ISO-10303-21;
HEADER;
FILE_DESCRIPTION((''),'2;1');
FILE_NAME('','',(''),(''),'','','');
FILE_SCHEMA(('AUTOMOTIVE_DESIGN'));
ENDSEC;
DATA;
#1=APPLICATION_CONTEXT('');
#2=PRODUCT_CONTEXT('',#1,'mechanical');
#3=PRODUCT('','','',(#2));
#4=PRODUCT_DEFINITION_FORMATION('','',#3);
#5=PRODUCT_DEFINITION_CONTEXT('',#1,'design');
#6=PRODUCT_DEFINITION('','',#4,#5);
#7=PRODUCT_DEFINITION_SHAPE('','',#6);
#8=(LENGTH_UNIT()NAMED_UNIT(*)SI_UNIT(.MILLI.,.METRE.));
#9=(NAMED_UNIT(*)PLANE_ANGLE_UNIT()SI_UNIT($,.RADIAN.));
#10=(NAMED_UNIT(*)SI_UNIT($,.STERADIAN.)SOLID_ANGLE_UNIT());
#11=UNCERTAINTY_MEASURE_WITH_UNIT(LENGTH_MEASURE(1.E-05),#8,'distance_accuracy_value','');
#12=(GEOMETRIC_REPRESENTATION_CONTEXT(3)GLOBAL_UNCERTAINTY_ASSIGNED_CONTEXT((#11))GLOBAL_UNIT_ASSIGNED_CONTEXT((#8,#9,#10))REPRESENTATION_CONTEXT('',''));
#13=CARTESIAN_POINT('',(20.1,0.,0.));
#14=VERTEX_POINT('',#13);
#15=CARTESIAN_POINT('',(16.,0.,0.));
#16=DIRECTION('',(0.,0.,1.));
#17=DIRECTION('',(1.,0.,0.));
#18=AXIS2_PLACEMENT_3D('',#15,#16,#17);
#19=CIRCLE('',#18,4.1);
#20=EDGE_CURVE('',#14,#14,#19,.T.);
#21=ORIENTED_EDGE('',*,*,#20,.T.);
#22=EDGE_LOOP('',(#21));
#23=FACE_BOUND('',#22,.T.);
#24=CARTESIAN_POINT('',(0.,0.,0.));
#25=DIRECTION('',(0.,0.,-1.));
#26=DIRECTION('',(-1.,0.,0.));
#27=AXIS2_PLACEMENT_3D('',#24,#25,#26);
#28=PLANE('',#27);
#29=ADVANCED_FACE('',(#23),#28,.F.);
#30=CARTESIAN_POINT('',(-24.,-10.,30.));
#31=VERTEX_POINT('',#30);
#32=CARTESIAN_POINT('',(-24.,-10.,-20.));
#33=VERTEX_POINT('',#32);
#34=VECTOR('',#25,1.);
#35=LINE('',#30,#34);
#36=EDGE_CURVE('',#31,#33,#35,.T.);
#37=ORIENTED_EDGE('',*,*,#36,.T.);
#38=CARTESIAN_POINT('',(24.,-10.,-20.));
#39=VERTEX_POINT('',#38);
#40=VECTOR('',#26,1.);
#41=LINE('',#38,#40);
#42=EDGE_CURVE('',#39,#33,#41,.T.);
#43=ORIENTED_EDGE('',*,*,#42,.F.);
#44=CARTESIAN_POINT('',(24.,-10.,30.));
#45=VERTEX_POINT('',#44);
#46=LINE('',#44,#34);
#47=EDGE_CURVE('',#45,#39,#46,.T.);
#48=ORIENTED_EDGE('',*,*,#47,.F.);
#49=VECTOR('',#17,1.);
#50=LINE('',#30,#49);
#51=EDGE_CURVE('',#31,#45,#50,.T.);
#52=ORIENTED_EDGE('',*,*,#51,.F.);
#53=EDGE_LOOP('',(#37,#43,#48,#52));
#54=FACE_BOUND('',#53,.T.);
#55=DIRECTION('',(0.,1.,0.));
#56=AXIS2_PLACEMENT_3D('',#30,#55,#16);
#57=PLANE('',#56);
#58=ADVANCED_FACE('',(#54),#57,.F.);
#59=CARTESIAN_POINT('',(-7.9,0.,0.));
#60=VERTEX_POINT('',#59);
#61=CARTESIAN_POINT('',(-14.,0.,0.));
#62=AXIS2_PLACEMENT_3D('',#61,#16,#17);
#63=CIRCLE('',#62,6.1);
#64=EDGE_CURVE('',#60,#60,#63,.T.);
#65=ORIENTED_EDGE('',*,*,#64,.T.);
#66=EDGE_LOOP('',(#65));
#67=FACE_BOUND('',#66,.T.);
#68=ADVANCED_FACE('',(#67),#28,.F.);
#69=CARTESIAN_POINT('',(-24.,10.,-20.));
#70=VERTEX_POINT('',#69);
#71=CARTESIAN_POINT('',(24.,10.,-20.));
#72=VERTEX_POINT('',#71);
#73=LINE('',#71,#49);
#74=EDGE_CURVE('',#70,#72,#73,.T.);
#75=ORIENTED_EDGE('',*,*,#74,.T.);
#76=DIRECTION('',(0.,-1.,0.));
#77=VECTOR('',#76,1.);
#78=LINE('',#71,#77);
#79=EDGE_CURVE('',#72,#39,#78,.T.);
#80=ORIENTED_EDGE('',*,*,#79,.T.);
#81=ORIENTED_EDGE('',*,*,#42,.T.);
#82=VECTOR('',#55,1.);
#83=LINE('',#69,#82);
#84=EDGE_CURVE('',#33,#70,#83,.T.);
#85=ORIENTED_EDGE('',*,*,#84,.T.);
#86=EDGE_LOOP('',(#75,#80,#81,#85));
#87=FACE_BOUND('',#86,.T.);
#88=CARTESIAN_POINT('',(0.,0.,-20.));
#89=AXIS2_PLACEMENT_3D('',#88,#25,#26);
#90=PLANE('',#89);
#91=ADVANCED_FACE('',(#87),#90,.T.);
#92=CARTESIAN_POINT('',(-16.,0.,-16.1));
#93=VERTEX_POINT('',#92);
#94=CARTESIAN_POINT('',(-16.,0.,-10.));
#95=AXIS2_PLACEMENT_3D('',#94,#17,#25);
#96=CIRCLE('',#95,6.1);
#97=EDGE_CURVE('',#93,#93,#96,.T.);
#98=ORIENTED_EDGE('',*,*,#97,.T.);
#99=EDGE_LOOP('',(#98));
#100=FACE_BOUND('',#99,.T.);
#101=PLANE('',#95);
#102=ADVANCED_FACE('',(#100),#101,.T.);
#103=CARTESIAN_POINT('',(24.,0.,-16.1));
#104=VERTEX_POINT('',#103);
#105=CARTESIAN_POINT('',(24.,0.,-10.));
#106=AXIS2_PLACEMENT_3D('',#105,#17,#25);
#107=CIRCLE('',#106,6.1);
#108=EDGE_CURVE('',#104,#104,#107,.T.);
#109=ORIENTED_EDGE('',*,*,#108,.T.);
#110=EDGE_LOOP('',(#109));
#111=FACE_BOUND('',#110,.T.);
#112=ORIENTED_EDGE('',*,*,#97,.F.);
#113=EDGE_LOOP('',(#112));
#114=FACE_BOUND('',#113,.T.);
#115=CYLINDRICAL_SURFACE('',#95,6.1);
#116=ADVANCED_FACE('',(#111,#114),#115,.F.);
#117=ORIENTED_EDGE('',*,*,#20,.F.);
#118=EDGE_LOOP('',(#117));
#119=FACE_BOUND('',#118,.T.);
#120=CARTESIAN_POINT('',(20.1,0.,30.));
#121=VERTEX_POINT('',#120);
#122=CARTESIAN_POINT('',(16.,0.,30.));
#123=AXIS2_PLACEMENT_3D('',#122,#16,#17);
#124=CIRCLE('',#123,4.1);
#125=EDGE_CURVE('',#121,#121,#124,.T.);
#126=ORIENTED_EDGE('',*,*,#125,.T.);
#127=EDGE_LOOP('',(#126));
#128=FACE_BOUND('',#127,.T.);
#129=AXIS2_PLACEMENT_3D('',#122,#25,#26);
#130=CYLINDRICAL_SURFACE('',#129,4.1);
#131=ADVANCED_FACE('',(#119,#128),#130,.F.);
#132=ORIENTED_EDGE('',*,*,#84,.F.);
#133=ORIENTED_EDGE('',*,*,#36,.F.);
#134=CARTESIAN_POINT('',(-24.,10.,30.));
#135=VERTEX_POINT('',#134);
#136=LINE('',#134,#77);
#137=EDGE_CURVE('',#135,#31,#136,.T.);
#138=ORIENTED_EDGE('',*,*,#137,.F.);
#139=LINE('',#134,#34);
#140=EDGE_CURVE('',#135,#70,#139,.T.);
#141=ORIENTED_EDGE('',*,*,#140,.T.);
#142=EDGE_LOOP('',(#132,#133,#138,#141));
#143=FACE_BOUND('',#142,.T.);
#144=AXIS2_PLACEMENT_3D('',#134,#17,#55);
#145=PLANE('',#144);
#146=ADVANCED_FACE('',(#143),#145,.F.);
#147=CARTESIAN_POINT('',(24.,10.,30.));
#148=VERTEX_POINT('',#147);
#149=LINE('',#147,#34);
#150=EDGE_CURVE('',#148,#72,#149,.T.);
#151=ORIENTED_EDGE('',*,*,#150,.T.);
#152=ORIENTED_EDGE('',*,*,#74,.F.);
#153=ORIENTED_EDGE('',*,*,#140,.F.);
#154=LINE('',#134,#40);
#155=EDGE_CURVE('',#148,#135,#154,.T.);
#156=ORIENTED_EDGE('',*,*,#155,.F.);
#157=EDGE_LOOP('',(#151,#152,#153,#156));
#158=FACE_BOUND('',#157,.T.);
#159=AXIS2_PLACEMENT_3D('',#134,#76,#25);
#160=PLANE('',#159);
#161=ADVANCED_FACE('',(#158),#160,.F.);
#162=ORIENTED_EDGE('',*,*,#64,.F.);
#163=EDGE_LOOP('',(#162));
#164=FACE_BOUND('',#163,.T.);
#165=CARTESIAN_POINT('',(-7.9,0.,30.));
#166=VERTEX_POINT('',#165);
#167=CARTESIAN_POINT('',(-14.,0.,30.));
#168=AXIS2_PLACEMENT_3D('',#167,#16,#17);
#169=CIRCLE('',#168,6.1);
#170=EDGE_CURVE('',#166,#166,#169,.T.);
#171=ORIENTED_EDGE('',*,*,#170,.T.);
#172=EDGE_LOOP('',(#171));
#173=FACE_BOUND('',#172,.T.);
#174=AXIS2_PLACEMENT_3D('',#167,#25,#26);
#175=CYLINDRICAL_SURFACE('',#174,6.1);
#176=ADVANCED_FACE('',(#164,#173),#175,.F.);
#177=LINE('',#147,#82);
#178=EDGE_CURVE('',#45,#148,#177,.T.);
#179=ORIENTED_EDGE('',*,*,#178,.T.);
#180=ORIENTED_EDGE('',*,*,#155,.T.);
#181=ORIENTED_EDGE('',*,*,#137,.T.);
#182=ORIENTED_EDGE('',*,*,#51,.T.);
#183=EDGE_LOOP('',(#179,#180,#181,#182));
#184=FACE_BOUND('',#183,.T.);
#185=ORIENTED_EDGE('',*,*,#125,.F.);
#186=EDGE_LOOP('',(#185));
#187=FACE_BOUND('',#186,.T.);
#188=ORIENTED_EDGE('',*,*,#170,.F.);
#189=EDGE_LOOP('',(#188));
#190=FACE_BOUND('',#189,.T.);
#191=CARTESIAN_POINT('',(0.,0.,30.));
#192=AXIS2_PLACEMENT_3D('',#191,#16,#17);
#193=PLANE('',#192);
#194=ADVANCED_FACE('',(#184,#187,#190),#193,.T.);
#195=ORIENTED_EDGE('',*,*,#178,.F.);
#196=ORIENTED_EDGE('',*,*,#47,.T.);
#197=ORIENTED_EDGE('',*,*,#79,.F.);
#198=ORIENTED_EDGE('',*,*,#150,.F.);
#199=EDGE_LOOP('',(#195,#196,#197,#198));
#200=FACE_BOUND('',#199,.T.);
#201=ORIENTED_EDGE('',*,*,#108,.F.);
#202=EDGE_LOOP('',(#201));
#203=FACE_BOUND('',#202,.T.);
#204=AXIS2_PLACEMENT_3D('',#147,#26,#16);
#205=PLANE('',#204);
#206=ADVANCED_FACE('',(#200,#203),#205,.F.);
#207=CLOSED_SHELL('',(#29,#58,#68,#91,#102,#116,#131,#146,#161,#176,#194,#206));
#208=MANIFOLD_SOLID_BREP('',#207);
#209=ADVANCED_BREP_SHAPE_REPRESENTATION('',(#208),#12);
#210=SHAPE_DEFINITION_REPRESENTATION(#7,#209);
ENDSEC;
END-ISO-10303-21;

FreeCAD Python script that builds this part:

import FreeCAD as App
import Part
import Sketcher

V = App.Vector
Q = App.Units.Quantity


def add_polygon(sketch, points):
    """Adds a closed chain of lines whose ends are joined by coincident constraints."""
    first, n = sketch.GeometryCount, len(points)
    for a, b in zip(points, points[1:] + points[:1]):
        sketch.addGeometry(Part.LineSegment(App.Vector(*a, 0), App.Vector(*b, 0)), False)
    for i in range(n):
        sketch.addConstraint(Sketcher.Constraint("Coincident", first + i, 2, first + (i + 1) % n, 1))

doc = App.newDocument("Part")
body = doc.addObject("PartDesign::Body", "Body")

sketch1 = body.newObject("Sketcher::SketchObject", "Sketch")
sketch1.AttachmentSupport = (doc.getObject("XY_Plane"), [""])
sketch1.MapMode = "FlatFace"
add_polygon(sketch1, [(-24, 10), (-24, -10), (24, -10), (24, 10)])
sketch1.addGeometry(Part.Circle(V(-14, 0, 0), V(0, 0, 1), 6.1), False)
sketch1.addGeometry(Part.Circle(V(16, 0, 0), V(0, 0, 1), 4.1), False)
sketch1.addConstraint(Sketcher.Constraint("Vertical", 0))
sketch1.addConstraint(Sketcher.Constraint("Horizontal", 1))
sketch1.addConstraint(Sketcher.Constraint("Vertical", 2))
sketch1.addConstraint(Sketcher.Constraint("Horizontal", 3))
sketch1.addConstraint(Sketcher.Constraint("Symmetric", 0, 2, 2, 2, -1, 1))
sketch1.addConstraint(Sketcher.Constraint("PointOnObject", 4, 3, -1))
sketch1.addConstraint(Sketcher.Constraint("PointOnObject", 5, 3, -1))
sketch1.addConstraint(Sketcher.Constraint("Diameter", 4, Q("12.2 mm")))
sketch1.addConstraint(Sketcher.Constraint("Diameter", 5, Q("8.2 mm")))
sketch1.addConstraint(Sketcher.Constraint("DistanceX", 1, 1, 1, 2, Q("48 mm")))
sketch1.addConstraint(Sketcher.Constraint("DistanceY", 0, 2, 0, 1, Q("20 mm")))
sketch1.addConstraint(Sketcher.Constraint("DistanceX", 4, 3, -1, 1, Q("14 mm")))
sketch1.addConstraint(Sketcher.Constraint("DistanceX", -1, 1, 5, 3, Q("16 mm")))
pad1 = body.newObject("PartDesign::Pad", "Pad")
pad1.Profile = sketch1
pad1.Length = 30

sketch2 = body.newObject("Sketcher::SketchObject", "Sketch001")
sketch2.AttachmentSupport = (doc.getObject("XY_Plane"), [""])
sketch2.MapMode = "FlatFace"
add_polygon(sketch2, [(24, 10), (24, -10), (-24, -10), (-24, 10)])
sketch2.addConstraint(Sketcher.Constraint("Vertical", 0))
sketch2.addConstraint(Sketcher.Constraint("Horizontal", 1))
sketch2.addConstraint(Sketcher.Constraint("Vertical", 2))
sketch2.addConstraint(Sketcher.Constraint("Horizontal", 3))
sketch2.addConstraint(Sketcher.Constraint("Symmetric", 0, 2, 2, 2, -1, 1))
sketch2.addConstraint(Sketcher.Constraint("DistanceX", 1, 2, 1, 1, Q("48 mm")))
sketch2.addConstraint(Sketcher.Constraint("DistanceY", 0, 2, 0, 1, Q("20 mm")))
pad2 = body.newObject("PartDesign::Pad", "Pad001")
pad2.Profile = sketch2
pad2.Length = 20
pad2.Reversed = True

sketch3 = body.newObject("Sketcher::SketchObject", "Sketch002")
sketch3.AttachmentSupport = (doc.getObject("YZ_Plane"), [""])
sketch3.MapMode = "FlatFace"
sketch3.AttachmentOffset = App.Placement(V(0, 0, 24), App.Rotation())
sketch3.addGeometry(Part.Circle(V(0, -10, 0), V(0, 0, 1), 6.1), False)
sketch3.addConstraint(Sketcher.Constraint("PointOnObject", 0, 3, -2))
sketch3.addConstraint(Sketcher.Constraint("Diameter", 0, Q("12.2 mm")))
sketch3.addConstraint(Sketcher.Constraint("DistanceY", 0, 3, -1, 1, Q("10 mm")))
pocket1 = body.newObject("PartDesign::Pocket", "Pocket")
pocket1.Profile = sketch3
pocket1.Length = 40

doc.recompute()
